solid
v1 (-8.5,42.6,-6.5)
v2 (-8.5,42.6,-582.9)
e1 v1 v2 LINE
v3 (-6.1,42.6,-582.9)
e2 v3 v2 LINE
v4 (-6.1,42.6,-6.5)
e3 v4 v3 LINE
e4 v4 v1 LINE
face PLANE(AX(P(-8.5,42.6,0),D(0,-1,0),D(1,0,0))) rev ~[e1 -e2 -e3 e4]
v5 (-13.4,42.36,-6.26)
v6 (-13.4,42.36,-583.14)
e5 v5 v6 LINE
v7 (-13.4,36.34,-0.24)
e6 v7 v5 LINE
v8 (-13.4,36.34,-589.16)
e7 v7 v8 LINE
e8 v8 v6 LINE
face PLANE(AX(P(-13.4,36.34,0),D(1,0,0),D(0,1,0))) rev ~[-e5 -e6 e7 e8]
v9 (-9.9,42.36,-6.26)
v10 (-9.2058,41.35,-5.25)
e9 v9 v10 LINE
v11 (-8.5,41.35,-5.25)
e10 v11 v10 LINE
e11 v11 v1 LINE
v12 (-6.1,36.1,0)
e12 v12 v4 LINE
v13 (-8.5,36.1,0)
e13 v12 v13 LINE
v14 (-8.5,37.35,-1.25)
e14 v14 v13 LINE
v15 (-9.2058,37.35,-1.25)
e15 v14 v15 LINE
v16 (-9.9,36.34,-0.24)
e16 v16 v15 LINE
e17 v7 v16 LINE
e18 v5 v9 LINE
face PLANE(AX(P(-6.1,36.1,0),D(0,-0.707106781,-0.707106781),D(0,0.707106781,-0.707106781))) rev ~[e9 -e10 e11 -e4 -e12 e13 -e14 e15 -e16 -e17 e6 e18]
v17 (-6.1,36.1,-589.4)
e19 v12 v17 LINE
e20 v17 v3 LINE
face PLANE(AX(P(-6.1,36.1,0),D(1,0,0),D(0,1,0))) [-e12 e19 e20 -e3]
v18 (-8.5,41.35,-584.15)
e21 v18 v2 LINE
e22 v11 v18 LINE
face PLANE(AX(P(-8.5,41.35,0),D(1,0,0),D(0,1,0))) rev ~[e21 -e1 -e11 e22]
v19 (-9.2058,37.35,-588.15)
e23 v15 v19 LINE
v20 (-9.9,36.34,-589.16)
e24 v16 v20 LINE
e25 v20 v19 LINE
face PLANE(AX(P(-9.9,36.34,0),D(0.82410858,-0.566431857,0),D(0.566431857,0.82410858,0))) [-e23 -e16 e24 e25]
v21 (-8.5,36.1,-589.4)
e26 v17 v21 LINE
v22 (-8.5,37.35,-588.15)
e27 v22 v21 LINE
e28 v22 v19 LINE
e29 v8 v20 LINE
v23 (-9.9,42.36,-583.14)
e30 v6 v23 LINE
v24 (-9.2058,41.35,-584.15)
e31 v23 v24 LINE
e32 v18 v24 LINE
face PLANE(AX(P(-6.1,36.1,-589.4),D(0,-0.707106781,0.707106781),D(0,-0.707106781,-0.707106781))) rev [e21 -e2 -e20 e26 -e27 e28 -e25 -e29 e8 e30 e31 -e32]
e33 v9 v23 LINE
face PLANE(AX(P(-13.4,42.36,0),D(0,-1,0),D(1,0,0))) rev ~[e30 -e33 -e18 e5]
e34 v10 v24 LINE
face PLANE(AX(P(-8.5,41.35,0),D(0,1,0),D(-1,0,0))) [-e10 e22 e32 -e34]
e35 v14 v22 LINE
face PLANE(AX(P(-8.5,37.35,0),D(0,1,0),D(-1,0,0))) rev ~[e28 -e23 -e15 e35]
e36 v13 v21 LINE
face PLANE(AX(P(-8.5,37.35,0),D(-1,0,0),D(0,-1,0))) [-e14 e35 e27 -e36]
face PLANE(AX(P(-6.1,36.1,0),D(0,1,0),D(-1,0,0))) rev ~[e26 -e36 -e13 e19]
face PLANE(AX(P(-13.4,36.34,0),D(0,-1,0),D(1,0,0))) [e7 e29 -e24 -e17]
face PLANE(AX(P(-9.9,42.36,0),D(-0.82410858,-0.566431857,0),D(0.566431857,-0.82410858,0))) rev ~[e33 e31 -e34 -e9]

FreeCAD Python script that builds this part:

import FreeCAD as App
import Part
import Sketcher
Q = App.Units.Quantity

doc = App.newDocument("Part")
body = doc.addObject("PartDesign::Body", "Body")

sketch1 = doc.addObject("Sketcher::SketchObject", "Sketch")
body.addObject(sketch1)
sketch1.AttachmentSupport = (doc.XY_Plane, [""])
sketch1.MapMode = "FlatFace"
sketch1.addGeometry([
    Part.LineSegment(App.Vector(-6.1, 42.6, 0), App.Vector(-8.5, 42.6, 0)),
    Part.LineSegment(App.Vector(-8.5, 42.6, 0), App.Vector(-8.5, 41.4, 0)),
    Part.LineSegment(App.Vector(-8.5, 41.4, 0), App.Vector(-9.2, 41.4, 0)),
    Part.LineSegment(App.Vector(-9.2, 41.4, 0), App.Vector(-9.9, 42.4, 0)),
    Part.LineSegment(App.Vector(-9.9, 42.4, 0), App.Vector(-13.4, 42.4, 0)),
    Part.LineSegment(App.Vector(-13.4, 42.4, 0), App.Vector(-13.4, 36.3, 0)),
    Part.LineSegment(App.Vector(-13.4, 36.3, 0), App.Vector(-9.9, 36.3, 0)),
    Part.LineSegment(App.Vector(-9.9, 36.3, 0), App.Vector(-9.2, 37.4, 0)),
    Part.LineSegment(App.Vector(-9.2, 37.4, 0), App.Vector(-8.5, 37.4, 0)),
    Part.LineSegment(App.Vector(-8.5, 37.4, 0), App.Vector(-8.5, 36.1, 0)),
    Part.LineSegment(App.Vector(-8.5, 36.1, 0), App.Vector(-6.1, 36.1, 0)),
    Part.LineSegment(App.Vector(-6.1, 36.1, 0), App.Vector(-6.1, 42.6, 0)),
], False)
sketch1.addConstraint([
    Sketcher.Constraint("Coincident", 0, 2, 1, 1),
    Sketcher.Constraint("Coincident", 1, 2, 2, 1),
    Sketcher.Constraint("Coincident", 2, 2, 3, 1),
    Sketcher.Constraint("Coincident", 3, 2, 4, 1),
    Sketcher.Constraint("Coincident", 4, 2, 5, 1),
    Sketcher.Constraint("Coincident", 5, 2, 6, 1),
    Sketcher.Constraint("Coincident", 6, 2, 7, 1),
    Sketcher.Constraint("Coincident", 7, 2, 8, 1),
    Sketcher.Constraint("Coincident", 8, 2, 9, 1),
    Sketcher.Constraint("Coincident", 9, 2, 10, 1),
    Sketcher.Constraint("Coincident", 10, 2, 11, 1),
    Sketcher.Constraint("Coincident", 11, 2, 0, 1),
    Sketcher.Constraint("Horizontal", 0),
    Sketcher.Constraint("Vertical", 1),
    Sketcher.Constraint("Horizontal", 2),
    Sketcher.Constraint("Horizontal", 4),
    Sketcher.Constraint("Vertical", 5),
    Sketcher.Constraint("Horizontal", 6),
    Sketcher.Constraint("Horizontal", 8),
    Sketcher.Constraint("Vertical", 9),
    Sketcher.Constraint("Horizontal", 10),
    Sketcher.Constraint("Vertical", 11),
    Sketcher.Constraint("Vertical", 3, 2, 6, 2),
    Sketcher.Constraint("Vertical", 2, 2, 7, 2),
    Sketcher.Constraint("Vertical", 1, 2, 8, 2),
    Sketcher.Constraint("Equal", 1, 9),
    Sketcher.Constraint("Equal", 3, 7),
    Sketcher.Constraint("DistanceX", 0, 2, 0, 1, Q("2.4 mm")),
    Sketcher.Constraint("DistanceX", 4, 2, 4, 1, Q("3.5 mm")),
    Sketcher.Constraint("DistanceY", 11, 1, 11, 2, Q("6.5 mm")),
    Sketcher.Constraint("DistanceY", 7, 2, 2, 2, Q("4 mm")),
    Sketcher.Constraint("DistanceY", 5, 2, 5, 1, Q("6.02 mm")),
    Sketcher.Constraint("DistanceX", 2, 2, 2, 1, Q("0.7058 mm")),
    Sketcher.Constraint("DistanceX", 0, 2, -1, 1, Q("8.5 mm")),
    Sketcher.Constraint("DistanceY", -1, 1, 0, 2, Q("42.6 mm")),
    Sketcher.Constraint("DistanceX", 3, 2, -1, 1, Q("9.9 mm")),
])
pad1 = doc.addObject("PartDesign::Pad", "Pad")
body.addObject(pad1)
pad1.Profile = sketch1
pad1.Length = 589.4
pad1.Reversed = True

sketch2 = doc.addObject("Sketcher::SketchObject", "Sketch001")
body.addObject(sketch2)
sketch2.AttachmentSupport = (doc.YZ_Plane, [""])
sketch2.MapMode = "FlatFace"
sketch2.AttachmentOffset = App.Placement(App.Vector(0, 0, -6.1), App.Rotation())
sketch2.addGeometry([
    Part.LineSegment(App.Vector(43, 0, 0), App.Vector(36, 0, 0)),
    Part.LineSegment(App.Vector(36, 0, 0), App.Vector(43, -6, 0)),
    Part.LineSegment(App.Vector(43, -6, 0), App.Vector(43, 0, 0)),
], False)
sketch2.addConstraint([
    Sketcher.Constraint("Coincident", 0, 2, 1, 1),
    Sketcher.Constraint("Coincident", 1, 2, 2, 1),
    Sketcher.Constraint("Coincident", 2, 2, 0, 1),
    Sketcher.Constraint("Horizontal", 0),
    Sketcher.Constraint("Vertical", 2),
    Sketcher.Constraint("PointOnObject", 0, 2, -1),
    Sketcher.Constraint("Equal", 0, 2),
    Sketcher.Constraint("DistanceX", 0, 2, 0, 1, Q("6.5 mm")),
    Sketcher.Constraint("DistanceX", -1, 1, 0, 2, Q("36.1 mm")),
])
pocket1 = doc.addObject("PartDesign::Pocket", "Pocket")
body.addObject(pocket1)
pocket1.Profile = sketch2
pocket1.Type = "ThroughAll"
doc.recompute()

datumplane = doc.addObject("PartDesign::Plane", "DatumPlane")
body.addObject(datumplane)
datumplane.AttachmentSupport = (doc.XY_Plane, [""])
datumplane.MapMode = "FlatFace"
datumplane.AttachmentOffset = App.Placement(App.Vector(0, 0, -294.7), App.Rotation())
mirrored = doc.addObject("PartDesign::Mirrored", "Mirrored")
body.addObject(mirrored)
mirrored.Originals = [pocket1]
mirrored.MirrorPlane = (datumplane, [""])
body.Tip = mirrored

doc.recompute()
